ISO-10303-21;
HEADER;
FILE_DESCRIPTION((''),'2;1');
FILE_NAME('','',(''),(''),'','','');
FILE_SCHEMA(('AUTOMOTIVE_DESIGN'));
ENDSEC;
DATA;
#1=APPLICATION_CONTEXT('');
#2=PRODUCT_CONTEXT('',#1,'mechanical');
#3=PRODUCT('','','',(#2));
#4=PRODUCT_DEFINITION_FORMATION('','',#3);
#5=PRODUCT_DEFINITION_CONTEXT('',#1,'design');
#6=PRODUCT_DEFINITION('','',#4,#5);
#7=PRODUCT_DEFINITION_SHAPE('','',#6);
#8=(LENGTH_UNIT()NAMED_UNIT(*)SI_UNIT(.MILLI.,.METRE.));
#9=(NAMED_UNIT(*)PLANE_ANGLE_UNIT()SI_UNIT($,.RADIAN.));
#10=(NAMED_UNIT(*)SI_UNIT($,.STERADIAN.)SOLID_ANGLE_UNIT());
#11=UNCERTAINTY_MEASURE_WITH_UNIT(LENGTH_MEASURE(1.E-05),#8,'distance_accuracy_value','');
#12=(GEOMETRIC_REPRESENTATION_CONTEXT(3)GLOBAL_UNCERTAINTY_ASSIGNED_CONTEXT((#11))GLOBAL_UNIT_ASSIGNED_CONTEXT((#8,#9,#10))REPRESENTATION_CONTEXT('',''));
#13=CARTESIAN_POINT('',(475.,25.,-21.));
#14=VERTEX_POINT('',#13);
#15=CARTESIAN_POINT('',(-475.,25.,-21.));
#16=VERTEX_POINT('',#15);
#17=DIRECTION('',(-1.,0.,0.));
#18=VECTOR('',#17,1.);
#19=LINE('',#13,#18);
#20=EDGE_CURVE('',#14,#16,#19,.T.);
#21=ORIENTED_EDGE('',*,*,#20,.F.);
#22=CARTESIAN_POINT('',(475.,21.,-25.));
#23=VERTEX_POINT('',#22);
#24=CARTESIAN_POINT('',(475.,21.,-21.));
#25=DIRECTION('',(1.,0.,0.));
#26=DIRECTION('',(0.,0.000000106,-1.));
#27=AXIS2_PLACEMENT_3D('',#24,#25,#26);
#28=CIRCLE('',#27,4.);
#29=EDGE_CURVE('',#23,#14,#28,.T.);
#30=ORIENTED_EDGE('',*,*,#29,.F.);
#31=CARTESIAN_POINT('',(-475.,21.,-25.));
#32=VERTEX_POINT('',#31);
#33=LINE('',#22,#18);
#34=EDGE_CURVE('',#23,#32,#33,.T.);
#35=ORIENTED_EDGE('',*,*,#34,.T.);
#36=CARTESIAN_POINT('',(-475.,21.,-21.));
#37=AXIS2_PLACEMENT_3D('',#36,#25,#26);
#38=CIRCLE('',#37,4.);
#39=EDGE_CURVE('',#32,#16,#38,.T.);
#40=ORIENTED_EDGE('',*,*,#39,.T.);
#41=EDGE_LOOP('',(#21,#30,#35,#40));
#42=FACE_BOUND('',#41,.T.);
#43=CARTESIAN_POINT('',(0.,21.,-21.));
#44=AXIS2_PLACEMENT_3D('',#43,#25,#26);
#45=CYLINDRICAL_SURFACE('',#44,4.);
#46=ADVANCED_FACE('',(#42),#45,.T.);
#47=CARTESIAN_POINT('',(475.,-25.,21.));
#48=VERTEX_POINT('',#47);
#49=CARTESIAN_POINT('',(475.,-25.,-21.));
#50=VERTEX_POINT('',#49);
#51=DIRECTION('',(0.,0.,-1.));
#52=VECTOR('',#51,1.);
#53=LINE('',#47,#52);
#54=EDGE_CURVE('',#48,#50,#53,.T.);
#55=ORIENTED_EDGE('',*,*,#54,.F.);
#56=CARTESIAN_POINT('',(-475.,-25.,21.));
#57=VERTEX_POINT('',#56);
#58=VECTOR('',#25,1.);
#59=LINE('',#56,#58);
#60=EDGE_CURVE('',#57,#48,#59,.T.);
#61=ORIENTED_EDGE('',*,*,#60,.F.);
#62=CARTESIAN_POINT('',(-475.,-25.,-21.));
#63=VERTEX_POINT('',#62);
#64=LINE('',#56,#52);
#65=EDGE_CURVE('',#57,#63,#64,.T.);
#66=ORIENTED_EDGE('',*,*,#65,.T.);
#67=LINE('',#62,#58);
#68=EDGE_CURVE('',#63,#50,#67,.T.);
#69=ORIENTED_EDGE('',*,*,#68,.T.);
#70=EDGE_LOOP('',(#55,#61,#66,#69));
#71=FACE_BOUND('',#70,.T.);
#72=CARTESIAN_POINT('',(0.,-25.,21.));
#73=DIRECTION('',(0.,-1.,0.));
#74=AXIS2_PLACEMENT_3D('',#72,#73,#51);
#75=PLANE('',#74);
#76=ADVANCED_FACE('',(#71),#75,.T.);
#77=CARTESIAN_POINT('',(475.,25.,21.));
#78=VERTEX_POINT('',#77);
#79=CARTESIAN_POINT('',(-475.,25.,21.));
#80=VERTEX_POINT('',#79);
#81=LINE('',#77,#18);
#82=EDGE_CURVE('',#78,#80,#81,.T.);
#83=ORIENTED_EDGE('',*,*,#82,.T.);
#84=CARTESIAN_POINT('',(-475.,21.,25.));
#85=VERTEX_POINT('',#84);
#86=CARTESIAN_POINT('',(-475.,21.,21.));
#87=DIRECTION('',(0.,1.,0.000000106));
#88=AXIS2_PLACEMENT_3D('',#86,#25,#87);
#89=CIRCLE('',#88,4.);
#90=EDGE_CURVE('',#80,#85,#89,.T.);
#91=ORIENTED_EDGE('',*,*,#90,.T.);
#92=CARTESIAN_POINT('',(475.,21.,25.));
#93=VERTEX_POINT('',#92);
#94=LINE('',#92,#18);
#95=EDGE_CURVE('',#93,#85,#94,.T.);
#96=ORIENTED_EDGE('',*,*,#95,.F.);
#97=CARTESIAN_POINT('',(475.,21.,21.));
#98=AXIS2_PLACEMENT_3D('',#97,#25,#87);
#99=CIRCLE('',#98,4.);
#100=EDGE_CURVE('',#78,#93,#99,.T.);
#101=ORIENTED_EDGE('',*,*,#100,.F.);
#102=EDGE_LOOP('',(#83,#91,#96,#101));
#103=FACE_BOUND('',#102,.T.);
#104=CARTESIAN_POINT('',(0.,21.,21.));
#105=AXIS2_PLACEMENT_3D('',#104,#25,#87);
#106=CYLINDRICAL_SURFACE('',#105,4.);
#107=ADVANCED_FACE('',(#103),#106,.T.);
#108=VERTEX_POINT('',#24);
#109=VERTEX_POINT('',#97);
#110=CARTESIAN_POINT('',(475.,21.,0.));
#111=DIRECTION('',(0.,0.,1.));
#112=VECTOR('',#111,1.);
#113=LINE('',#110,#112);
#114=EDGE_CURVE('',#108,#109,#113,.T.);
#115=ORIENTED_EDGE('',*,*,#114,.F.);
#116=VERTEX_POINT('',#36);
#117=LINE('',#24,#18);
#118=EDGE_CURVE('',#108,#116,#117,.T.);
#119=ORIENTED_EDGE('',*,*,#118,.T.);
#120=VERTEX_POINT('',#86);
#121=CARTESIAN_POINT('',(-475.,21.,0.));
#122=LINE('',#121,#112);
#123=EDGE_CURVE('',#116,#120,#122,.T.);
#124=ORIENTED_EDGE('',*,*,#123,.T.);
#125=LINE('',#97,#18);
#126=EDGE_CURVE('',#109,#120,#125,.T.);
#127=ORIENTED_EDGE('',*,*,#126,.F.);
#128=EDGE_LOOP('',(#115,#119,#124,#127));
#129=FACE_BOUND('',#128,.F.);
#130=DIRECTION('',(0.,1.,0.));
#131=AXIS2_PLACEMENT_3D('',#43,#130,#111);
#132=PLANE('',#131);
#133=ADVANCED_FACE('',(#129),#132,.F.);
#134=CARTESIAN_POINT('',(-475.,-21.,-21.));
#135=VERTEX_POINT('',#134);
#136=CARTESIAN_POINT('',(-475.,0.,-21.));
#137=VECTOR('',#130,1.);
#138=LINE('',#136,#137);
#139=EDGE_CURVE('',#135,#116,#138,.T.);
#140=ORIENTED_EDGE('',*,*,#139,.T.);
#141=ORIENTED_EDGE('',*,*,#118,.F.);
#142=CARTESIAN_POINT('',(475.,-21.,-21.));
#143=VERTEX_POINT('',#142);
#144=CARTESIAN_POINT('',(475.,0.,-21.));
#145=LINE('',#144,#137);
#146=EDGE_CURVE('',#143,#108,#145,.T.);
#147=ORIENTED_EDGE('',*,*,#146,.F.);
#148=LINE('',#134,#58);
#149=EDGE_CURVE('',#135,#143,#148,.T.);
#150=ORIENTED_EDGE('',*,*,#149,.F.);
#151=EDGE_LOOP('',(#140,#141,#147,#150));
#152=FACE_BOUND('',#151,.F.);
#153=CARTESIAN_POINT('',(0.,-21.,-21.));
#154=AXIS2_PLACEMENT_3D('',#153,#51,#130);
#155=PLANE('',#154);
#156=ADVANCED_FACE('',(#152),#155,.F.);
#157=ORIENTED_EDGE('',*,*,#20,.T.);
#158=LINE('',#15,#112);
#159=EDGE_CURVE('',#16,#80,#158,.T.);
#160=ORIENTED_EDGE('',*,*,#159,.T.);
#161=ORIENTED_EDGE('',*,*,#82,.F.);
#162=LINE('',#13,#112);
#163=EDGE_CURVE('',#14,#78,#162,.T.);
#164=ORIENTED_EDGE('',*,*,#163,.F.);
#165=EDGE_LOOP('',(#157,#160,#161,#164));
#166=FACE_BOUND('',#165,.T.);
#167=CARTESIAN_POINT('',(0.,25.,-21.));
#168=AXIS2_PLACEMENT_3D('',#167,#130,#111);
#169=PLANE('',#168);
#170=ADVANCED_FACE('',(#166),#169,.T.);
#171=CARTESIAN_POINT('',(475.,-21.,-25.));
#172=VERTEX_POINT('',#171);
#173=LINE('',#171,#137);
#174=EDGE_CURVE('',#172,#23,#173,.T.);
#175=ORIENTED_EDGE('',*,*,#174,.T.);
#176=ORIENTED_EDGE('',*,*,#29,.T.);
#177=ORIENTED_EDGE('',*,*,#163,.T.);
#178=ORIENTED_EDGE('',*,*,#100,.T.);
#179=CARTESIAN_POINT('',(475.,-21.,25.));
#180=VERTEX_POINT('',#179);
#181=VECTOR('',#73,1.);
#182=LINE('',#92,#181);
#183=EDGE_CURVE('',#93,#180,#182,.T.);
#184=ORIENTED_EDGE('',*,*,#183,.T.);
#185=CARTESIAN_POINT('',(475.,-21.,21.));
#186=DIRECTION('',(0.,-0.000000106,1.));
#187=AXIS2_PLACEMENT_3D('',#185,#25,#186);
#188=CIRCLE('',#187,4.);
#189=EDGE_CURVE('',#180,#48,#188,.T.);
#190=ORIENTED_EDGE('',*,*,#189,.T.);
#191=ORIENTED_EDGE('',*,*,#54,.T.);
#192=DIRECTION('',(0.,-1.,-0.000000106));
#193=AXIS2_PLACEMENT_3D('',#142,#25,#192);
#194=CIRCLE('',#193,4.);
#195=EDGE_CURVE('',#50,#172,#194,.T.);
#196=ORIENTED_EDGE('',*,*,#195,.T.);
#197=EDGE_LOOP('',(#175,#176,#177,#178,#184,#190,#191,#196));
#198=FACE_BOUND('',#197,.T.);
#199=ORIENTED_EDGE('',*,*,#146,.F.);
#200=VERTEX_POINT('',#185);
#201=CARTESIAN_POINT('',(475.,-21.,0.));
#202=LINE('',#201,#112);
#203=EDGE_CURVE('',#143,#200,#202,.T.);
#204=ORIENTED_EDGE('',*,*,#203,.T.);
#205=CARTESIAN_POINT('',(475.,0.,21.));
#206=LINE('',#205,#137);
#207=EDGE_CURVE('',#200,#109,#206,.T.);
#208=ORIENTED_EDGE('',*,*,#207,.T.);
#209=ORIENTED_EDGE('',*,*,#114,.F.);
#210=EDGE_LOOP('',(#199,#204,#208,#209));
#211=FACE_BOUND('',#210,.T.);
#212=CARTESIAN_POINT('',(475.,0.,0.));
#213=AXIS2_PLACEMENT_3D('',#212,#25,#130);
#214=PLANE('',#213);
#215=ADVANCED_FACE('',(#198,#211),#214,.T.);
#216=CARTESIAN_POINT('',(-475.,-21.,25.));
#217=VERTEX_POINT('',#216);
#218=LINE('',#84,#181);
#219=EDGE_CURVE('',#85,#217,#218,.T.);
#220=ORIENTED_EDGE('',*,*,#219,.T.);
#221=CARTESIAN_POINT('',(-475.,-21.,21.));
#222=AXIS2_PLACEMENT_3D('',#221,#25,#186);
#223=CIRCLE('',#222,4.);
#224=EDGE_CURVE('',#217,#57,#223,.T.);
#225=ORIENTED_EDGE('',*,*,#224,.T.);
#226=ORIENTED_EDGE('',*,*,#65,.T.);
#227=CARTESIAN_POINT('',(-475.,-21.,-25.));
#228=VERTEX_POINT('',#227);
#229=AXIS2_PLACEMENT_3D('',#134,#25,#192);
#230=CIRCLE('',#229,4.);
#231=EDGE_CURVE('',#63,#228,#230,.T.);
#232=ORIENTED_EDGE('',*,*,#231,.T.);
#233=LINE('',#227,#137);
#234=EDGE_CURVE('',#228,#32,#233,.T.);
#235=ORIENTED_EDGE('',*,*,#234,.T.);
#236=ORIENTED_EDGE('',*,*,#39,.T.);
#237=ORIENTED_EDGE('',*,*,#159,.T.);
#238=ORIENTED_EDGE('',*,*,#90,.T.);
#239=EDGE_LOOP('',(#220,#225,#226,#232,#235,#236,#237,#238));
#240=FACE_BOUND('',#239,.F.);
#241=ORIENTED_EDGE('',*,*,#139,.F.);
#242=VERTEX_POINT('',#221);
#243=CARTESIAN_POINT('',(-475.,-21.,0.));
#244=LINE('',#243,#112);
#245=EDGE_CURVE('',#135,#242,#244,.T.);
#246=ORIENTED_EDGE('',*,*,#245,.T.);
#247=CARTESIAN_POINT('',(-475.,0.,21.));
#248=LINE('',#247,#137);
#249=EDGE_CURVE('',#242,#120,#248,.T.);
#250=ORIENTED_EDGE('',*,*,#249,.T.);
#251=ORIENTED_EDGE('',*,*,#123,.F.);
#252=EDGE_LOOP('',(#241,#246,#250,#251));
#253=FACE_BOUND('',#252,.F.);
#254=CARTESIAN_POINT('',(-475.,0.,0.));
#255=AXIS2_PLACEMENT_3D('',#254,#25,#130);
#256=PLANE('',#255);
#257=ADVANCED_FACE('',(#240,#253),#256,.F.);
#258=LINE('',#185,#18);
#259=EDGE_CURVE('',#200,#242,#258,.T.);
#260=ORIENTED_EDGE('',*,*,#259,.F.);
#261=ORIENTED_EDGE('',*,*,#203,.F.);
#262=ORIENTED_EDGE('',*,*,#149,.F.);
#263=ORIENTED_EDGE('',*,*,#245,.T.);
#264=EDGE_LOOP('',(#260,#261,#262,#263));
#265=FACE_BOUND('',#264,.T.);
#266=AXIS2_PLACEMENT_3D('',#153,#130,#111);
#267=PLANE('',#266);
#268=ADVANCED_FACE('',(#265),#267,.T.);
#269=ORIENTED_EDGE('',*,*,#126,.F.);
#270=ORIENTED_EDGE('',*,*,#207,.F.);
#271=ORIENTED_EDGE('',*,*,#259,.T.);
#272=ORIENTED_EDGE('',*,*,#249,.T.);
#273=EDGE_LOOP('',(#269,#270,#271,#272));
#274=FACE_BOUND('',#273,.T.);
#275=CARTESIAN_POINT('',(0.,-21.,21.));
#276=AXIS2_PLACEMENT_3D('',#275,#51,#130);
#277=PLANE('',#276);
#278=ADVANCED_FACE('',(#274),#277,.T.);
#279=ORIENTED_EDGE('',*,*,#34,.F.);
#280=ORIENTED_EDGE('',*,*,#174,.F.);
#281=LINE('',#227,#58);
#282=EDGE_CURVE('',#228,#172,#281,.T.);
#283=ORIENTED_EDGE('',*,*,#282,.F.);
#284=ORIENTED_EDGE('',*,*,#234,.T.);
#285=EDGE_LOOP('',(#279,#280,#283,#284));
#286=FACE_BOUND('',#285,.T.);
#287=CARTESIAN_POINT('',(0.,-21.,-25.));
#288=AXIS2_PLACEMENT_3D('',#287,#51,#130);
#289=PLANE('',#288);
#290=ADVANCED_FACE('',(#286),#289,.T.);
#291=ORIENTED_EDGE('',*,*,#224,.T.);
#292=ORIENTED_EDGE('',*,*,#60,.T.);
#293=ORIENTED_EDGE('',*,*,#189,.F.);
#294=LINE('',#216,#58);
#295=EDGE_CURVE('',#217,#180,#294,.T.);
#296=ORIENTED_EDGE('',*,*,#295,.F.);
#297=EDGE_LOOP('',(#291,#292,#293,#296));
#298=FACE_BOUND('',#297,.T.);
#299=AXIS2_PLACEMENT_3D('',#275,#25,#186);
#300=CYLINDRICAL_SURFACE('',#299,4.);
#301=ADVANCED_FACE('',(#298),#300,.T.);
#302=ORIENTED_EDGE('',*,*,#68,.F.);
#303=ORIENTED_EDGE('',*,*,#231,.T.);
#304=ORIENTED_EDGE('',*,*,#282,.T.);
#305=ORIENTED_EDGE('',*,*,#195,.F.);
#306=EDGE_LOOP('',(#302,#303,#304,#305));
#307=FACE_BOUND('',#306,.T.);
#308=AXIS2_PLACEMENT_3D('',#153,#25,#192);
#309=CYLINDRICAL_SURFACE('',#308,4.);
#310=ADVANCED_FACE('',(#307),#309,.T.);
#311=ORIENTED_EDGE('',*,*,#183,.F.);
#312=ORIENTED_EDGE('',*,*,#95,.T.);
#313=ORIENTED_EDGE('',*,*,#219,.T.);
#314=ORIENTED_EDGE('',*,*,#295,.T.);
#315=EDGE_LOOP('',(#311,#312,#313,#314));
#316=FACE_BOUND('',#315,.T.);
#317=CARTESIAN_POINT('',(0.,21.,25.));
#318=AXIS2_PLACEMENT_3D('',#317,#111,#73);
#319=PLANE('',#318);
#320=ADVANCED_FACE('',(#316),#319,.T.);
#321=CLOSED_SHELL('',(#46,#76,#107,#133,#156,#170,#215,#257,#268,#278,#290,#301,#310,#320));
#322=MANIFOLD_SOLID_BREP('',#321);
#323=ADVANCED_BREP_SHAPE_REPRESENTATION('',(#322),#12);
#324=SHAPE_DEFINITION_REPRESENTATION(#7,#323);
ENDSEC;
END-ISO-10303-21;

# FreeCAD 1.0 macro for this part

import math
import FreeCAD as App
import Part
import Sketcher
from FreeCAD import Vector

doc = App.newDocument("Part")
body = doc.addObject("PartDesign::Body", "Body")

# Sketch on YZ plane
sketch1 = doc.addObject("Sketcher::SketchObject", "Sketch")
body.addObject(sketch1)
sketch1.AttachmentSupport = (doc.YZ_Plane, [""])
sketch1.MapMode = "FlatFace"
sketch1.addGeometry(Part.LineSegment(Vector(21, 25, 0), Vector(-21, 25, 0)), False)
sketch1.addGeometry(Part.ArcOfCircle(Part.Circle(Vector(-21, 21, 0), Vector(0, 0, 1), 4), math.radians(90), math.radians(180)), False)
sketch1.addGeometry(Part.LineSegment(Vector(-25, 21, 0), Vector(-25, -21, 0)), False)
sketch1.addGeometry(Part.ArcOfCircle(Part.Circle(Vector(-21, -21, 0), Vector(0, 0, 1), 4), math.radians(-180), math.radians(-90)), False)
sketch1.addGeometry(Part.LineSegment(Vector(-21, -25, 0), Vector(21, -25, 0)), False)
sketch1.addGeometry(Part.ArcOfCircle(Part.Circle(Vector(21, -21, 0), Vector(0, 0, 1), 4), math.radians(-90), math.radians(0)), False)
sketch1.addGeometry(Part.LineSegment(Vector(25, -21, 0), Vector(25, 21, 0)), False)
sketch1.addGeometry(Part.ArcOfCircle(Part.Circle(Vector(21, 21, 0), Vector(0, 0, 1), 4), math.radians(0), math.radians(90)), False)
sketch1.addGeometry(Part.LineSegment(Vector(21, -21, 0), Vector(-21, -21, 0)), False)
sketch1.addGeometry(Part.LineSegment(Vector(-21, -21, 0), Vector(-21, 21, 0)), False)
sketch1.addGeometry(Part.LineSegment(Vector(-21, 21, 0), Vector(21, 21, 0)), False)
sketch1.addGeometry(Part.LineSegment(Vector(21, 21, 0), Vector(21, -21, 0)), False)
sketch1.addConstraint(Sketcher.Constraint("Tangent", 0, 2, 1, 1))
sketch1.addConstraint(Sketcher.Constraint("Tangent", 1, 2, 2, 1))
sketch1.addConstraint(Sketcher.Constraint("Tangent", 2, 2, 3, 1))
sketch1.addConstraint(Sketcher.Constraint("Tangent", 3, 2, 4, 1))
sketch1.addConstraint(Sketcher.Constraint("Tangent", 4, 2, 5, 1))
sketch1.addConstraint(Sketcher.Constraint("Tangent", 5, 2, 6, 1))
sketch1.addConstraint(Sketcher.Constraint("Tangent", 6, 2, 7, 1))
sketch1.addConstraint(Sketcher.Constraint("Tangent", 7, 2, 0, 1))
sketch1.addConstraint(Sketcher.Constraint("Coincident", 8, 2, 9, 1))
sketch1.addConstraint(Sketcher.Constraint("Coincident", 9, 2, 10, 1))
sketch1.addConstraint(Sketcher.Constraint("Coincident", 10, 2, 11, 1))
sketch1.addConstraint(Sketcher.Constraint("Coincident", 11, 2, 8, 1))
sketch1.addConstraint(Sketcher.Constraint("Horizontal", 0))
sketch1.addConstraint(Sketcher.Constraint("Vertical", 2))
sketch1.addConstraint(Sketcher.Constraint("Horizontal", 4))
sketch1.addConstraint(Sketcher.Constraint("Vertical", 6))
sketch1.addConstraint(Sketcher.Constraint("Horizontal", 8))
sketch1.addConstraint(Sketcher.Constraint("Vertical", 9))
sketch1.addConstraint(Sketcher.Constraint("Horizontal", 10))
sketch1.addConstraint(Sketcher.Constraint("Vertical", 11))
sketch1.addConstraint(Sketcher.Constraint("Coincident", 8, 2, 3, 3))
sketch1.addConstraint(Sketcher.Constraint("Coincident", 9, 2, 1, 3))
sketch1.addConstraint(Sketcher.Constraint("Coincident", 10, 2, 7, 3))
sketch1.addConstraint(Sketcher.Constraint("Equal", 3, 5))
sketch1.addConstraint(Sketcher.Constraint("Symmetric", 1, 3, 5, 3, -1, 1))
sketch1.addConstraint(Sketcher.Constraint("Equal", 10, 2))
sketch1.addConstraint(Sketcher.Constraint("Radius", 1, 4.0))
sketch1.addConstraint(Sketcher.Constraint("DistanceX", 0, 2, 0, 1, 42.0))
pad1 = doc.addObject("PartDesign::Pad", "Pad")
body.addObject(pad1)
pad1.Profile = sketch1
pad1.Length = 950
pad1.Midplane = True

doc.recompute()
